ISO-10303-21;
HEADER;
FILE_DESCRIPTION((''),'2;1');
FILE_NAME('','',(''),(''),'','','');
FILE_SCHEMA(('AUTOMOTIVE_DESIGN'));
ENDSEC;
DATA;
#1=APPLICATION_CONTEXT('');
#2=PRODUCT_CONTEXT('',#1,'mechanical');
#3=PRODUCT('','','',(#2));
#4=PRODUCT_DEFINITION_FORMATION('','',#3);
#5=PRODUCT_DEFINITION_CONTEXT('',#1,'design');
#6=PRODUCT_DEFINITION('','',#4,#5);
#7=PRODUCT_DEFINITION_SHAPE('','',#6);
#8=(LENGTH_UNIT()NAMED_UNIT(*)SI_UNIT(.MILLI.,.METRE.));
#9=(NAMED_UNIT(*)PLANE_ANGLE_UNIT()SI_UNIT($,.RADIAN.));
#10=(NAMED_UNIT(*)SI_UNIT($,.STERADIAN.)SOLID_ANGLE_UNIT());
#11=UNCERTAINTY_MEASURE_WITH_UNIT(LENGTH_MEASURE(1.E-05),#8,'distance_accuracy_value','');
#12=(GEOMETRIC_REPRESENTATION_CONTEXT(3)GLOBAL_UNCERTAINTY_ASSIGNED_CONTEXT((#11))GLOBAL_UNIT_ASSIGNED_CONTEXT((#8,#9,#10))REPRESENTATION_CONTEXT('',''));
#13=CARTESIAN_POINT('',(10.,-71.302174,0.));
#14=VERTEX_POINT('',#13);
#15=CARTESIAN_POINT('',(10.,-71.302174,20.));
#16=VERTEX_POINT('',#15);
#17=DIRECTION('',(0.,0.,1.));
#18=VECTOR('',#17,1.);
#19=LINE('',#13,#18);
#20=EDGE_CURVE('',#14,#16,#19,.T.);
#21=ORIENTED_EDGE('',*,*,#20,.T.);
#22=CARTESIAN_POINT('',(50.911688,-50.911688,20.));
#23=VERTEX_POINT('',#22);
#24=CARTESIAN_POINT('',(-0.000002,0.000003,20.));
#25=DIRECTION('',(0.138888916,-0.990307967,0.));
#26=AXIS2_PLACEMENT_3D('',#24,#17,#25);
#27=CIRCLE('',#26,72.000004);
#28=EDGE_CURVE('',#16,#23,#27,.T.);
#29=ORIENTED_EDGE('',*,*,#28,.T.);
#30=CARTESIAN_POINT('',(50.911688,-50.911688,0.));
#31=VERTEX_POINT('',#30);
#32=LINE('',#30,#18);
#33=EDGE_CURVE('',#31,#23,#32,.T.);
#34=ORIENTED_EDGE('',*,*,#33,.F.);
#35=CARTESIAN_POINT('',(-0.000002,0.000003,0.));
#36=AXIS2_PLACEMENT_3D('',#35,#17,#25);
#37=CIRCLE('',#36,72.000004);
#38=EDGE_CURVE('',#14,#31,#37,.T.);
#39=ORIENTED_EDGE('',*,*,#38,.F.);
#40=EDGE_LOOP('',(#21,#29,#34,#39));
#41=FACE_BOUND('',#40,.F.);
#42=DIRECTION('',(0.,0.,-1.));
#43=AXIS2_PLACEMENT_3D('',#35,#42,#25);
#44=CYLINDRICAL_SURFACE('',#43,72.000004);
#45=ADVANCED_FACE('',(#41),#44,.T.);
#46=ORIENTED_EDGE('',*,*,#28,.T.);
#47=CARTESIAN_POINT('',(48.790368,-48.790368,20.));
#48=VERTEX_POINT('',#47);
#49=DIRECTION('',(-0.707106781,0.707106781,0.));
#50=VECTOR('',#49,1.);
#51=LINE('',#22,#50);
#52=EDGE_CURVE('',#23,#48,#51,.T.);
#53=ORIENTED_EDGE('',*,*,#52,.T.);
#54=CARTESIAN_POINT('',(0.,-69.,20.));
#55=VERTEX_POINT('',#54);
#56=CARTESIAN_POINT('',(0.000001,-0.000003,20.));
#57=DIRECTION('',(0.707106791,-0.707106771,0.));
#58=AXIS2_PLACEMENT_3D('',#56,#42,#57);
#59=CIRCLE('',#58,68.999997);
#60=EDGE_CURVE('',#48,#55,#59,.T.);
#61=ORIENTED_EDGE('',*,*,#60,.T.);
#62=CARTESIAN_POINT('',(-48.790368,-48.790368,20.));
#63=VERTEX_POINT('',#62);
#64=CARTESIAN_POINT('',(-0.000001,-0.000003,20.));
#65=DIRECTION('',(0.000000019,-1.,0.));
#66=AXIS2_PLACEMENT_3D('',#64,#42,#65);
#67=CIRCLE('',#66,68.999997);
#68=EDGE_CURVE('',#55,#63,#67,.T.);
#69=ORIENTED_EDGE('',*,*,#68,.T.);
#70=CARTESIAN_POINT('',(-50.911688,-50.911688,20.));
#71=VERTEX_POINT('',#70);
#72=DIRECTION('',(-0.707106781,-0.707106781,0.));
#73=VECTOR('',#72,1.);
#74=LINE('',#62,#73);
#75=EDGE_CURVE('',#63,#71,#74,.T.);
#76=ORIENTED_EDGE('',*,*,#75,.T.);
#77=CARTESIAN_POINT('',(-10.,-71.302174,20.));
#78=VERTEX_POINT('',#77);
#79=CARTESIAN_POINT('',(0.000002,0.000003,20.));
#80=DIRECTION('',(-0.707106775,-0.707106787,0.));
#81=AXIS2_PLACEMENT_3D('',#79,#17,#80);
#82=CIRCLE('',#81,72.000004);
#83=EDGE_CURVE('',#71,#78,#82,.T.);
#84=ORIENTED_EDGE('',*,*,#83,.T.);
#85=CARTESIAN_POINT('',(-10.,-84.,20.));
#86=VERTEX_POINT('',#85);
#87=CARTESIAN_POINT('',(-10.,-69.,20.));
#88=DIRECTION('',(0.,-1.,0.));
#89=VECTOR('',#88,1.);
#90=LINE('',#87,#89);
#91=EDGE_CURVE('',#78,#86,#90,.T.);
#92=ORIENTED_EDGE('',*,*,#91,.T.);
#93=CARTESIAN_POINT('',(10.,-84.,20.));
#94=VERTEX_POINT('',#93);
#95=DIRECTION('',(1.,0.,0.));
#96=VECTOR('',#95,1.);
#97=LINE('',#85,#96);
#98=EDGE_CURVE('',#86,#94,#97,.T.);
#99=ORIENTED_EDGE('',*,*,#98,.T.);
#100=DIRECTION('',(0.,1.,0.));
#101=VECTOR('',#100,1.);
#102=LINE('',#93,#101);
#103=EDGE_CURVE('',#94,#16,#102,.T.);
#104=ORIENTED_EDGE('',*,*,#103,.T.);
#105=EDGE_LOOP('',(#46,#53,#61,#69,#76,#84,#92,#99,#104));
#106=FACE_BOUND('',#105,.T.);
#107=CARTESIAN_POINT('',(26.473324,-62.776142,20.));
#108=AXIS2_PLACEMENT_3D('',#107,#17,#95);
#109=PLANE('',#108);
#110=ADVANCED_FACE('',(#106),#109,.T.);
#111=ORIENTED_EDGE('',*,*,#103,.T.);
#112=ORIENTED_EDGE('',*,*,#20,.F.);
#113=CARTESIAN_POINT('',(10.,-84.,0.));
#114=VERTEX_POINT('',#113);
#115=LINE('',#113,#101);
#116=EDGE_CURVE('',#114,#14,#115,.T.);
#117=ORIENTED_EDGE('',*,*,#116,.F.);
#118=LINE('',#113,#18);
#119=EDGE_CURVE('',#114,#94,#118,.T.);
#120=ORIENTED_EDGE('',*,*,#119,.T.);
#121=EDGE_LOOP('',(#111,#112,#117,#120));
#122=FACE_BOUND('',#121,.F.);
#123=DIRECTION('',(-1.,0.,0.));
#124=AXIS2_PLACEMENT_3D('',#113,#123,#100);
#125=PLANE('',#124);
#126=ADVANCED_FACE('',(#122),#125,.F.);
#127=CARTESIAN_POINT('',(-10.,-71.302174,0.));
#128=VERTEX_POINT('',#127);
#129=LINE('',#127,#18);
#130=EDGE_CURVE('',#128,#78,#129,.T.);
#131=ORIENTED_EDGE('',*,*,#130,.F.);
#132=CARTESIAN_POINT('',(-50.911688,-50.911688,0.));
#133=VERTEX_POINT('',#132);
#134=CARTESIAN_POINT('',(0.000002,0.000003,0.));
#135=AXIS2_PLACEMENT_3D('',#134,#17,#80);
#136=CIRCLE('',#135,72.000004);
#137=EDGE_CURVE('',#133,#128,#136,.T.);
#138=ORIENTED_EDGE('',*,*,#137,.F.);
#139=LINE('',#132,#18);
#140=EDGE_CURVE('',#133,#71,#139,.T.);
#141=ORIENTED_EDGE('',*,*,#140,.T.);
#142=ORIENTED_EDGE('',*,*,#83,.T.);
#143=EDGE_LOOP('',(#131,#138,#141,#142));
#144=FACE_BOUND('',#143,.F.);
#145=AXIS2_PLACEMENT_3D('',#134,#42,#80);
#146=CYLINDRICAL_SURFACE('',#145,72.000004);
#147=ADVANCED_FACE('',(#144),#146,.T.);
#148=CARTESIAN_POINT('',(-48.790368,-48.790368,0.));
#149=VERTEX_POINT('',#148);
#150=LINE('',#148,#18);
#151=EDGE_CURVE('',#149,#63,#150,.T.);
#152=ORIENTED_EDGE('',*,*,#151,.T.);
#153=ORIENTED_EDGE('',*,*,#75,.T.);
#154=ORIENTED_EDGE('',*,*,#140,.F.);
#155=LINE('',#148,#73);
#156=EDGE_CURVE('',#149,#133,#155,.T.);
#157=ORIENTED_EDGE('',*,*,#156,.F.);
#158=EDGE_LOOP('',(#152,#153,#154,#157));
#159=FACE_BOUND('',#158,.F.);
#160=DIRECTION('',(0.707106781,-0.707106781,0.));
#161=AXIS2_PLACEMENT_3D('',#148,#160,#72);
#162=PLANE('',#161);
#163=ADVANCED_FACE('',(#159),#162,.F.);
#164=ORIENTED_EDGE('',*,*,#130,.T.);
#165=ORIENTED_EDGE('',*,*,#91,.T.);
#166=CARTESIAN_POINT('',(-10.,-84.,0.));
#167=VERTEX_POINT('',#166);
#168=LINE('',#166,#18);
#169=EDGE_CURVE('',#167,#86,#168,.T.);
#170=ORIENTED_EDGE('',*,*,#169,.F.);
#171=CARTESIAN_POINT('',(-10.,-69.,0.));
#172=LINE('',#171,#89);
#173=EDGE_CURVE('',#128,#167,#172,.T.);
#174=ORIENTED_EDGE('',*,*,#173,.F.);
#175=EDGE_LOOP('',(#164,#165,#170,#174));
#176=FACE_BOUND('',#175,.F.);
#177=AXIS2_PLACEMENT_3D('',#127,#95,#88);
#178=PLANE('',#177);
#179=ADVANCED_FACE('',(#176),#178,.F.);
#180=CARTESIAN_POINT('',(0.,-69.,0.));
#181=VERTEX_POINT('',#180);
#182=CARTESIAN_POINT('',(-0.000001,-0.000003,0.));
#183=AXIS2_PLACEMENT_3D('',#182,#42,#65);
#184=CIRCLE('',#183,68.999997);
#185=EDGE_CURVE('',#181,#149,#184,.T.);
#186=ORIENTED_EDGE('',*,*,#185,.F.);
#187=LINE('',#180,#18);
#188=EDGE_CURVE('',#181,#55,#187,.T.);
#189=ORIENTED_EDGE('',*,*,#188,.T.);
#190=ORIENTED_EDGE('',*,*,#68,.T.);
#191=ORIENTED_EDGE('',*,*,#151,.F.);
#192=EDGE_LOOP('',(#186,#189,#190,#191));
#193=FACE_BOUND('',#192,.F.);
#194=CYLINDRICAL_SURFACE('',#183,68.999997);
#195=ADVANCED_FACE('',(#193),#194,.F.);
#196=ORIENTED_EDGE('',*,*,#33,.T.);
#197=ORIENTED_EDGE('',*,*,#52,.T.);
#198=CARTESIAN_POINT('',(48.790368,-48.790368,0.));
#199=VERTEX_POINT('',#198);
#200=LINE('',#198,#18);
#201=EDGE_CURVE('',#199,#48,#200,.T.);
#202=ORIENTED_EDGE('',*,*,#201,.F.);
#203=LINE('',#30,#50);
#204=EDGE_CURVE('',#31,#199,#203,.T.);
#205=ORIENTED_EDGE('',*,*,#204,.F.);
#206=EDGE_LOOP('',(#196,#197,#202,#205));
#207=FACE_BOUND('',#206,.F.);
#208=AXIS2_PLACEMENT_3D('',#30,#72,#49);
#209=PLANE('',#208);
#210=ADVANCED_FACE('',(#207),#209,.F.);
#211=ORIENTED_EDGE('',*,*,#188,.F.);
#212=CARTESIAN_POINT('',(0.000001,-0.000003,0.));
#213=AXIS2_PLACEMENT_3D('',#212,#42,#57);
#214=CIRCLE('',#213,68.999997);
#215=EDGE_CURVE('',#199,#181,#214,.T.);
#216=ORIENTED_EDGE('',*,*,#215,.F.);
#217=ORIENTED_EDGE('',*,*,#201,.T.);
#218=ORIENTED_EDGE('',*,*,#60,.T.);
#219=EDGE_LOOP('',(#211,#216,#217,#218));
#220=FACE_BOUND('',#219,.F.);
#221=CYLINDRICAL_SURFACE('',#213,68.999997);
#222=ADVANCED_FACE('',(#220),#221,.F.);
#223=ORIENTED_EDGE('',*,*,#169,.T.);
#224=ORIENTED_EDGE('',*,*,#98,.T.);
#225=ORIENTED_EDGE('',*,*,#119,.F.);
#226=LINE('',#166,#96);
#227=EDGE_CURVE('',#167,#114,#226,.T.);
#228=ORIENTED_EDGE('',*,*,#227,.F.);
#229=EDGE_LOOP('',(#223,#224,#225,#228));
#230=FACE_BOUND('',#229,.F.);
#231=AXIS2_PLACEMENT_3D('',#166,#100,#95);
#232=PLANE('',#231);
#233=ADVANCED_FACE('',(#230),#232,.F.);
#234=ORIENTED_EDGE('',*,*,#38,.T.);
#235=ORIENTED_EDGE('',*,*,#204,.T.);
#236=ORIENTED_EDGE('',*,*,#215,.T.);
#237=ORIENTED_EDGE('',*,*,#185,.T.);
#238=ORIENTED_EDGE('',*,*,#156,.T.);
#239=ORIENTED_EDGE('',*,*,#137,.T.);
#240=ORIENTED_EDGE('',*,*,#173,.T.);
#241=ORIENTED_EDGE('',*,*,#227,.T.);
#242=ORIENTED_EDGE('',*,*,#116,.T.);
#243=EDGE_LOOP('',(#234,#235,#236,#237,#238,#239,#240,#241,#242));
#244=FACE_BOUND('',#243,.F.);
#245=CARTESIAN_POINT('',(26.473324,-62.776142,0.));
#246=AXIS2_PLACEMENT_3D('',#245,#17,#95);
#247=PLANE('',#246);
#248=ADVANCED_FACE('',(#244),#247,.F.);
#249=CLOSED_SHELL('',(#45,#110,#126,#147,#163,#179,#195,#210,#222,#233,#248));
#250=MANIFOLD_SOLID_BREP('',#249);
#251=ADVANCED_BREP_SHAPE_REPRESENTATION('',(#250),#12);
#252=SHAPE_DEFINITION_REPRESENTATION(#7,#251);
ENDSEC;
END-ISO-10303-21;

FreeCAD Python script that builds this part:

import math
import FreeCAD as App
import Part
import Sketcher

doc = App.newDocument("Part")
body = doc.addObject("PartDesign::Body", "Body")

# Sketch on XY plane
sketch1 = body.newObject("Sketcher::SketchObject", "Sketch")
sketch1.AttachmentSupport = (doc.getObject("XY_Plane"), [""])
sketch1.MapMode = "FlatFace"
sketch1.addGeometry(Part.ArcOfCircle(Part.Circle(App.Vector(-0.000002, 0.000003, 0), App.Vector(0, 0, 1), 72.000004), math.radians(-82.016442), math.radians(-45)), False)
sketch1.addGeometry(Part.LineSegment(App.Vector(50.911688, -50.911688, 0), App.Vector(48.790368, -48.790368, 0)), False)
sketch1.addGeometry(Part.ArcOfCircle(Part.Circle(App.Vector(0.000001, -0.000003, 0), App.Vector(0, 0, 1), 68.999997), math.radians(-90.000001), math.radians(-44.999999)), False)
sketch1.addGeometry(Part.ArcOfCircle(Part.Circle(App.Vector(-0.000001, -0.000003, 0), App.Vector(0, 0, 1), 68.999997), math.radians(-135.000001), math.radians(-89.999999)), False)
sketch1.addGeometry(Part.LineSegment(App.Vector(-48.790368, -48.790368, 0), App.Vector(-50.911688, -50.911688, 0)), False)
sketch1.addGeometry(Part.ArcOfCircle(Part.Circle(App.Vector(0.000002, 0.000003, 0), App.Vector(0, 0, 1), 72.000004), math.radians(-135), math.radians(-97.983558)), False)
sketch1.addGeometry(Part.LineSegment(App.Vector(-10, -71.302174, 0), App.Vector(-10, -84, 0)), False)
sketch1.addGeometry(Part.LineSegment(App.Vector(-10, -84, 0), App.Vector(10, -84, 0)), False)
sketch1.addGeometry(Part.LineSegment(App.Vector(10, -84, 0), App.Vector(10, -71.302174, 0)), False)
sketch1.addConstraint(Sketcher.Constraint("Coincident", 0, 2, 1, 1))
sketch1.addConstraint(Sketcher.Constraint("Coincident", 1, 2, 2, 2))
sketch1.addConstraint(Sketcher.Constraint("Tangent", 2, 1, 3, 2))
sketch1.addConstraint(Sketcher.Constraint("Coincident", 3, 1, 4, 1))
sketch1.addConstraint(Sketcher.Constraint("Coincident", 4, 2, 5, 1))
sketch1.addConstraint(Sketcher.Constraint("Coincident", 5, 2, 6, 1))
sketch1.addConstraint(Sketcher.Constraint("Coincident", 6, 2, 7, 1))
sketch1.addConstraint(Sketcher.Constraint("Coincident", 7, 2, 8, 1))
sketch1.addConstraint(Sketcher.Constraint("Coincident", 8, 2, 0, 1))
sketch1.addConstraint(Sketcher.Constraint("Vertical", 6))
sketch1.addConstraint(Sketcher.Constraint("Horizontal", 7))
sketch1.addConstraint(Sketcher.Constraint("Vertical", 8))
sketch1.addConstraint(Sketcher.Constraint("Coincident", 0, 3, -1, 1))
sketch1.addConstraint(Sketcher.Constraint("Coincident", 2, 3, -1, 1))
sketch1.addConstraint(Sketcher.Constraint("Coincident", 5, 3, -1, 1))
sketch1.addConstraint(Sketcher.Constraint("Equal", 2, 3))
sketch1.addConstraint(Sketcher.Constraint("Equal", 0, 5))
sketch1.addConstraint(Sketcher.Constraint("PointOnObject", 2, 1, -2))
sketch1.addConstraint(Sketcher.Constraint("Perpendicular", 1, 4))
sketch1.addConstraint(Sketcher.Constraint("Horizontal", 1, 2, 3, 1))
sketch1.addConstraint(Sketcher.Constraint("Horizontal", 0, 2, 4, 2))
sketch1.addConstraint(Sketcher.Constraint("Horizontal", 5, 2, 8, 2))
sketch1.addConstraint(Sketcher.Constraint("DistanceX", 7, 1, 7, 2, 20.0))
sketch1.addConstraint(Sketcher.Constraint("Distance", 1, 3.0))
sketch1.addConstraint(Sketcher.Constraint("DistanceY", 2, 1, -1, 1, 69.0))
sketch1.addConstraint(Sketcher.Constraint("DistanceY", 6, 2, -1, 1, 84.0))
sketch1.addConstraint(Sketcher.Constraint("DistanceX", 3, 3, 0, 2, 50.911689))
pad1 = body.newObject("PartDesign::Pad", "Pad")
pad1.Profile = sketch1
pad1.Length = 20

doc.recompute()
